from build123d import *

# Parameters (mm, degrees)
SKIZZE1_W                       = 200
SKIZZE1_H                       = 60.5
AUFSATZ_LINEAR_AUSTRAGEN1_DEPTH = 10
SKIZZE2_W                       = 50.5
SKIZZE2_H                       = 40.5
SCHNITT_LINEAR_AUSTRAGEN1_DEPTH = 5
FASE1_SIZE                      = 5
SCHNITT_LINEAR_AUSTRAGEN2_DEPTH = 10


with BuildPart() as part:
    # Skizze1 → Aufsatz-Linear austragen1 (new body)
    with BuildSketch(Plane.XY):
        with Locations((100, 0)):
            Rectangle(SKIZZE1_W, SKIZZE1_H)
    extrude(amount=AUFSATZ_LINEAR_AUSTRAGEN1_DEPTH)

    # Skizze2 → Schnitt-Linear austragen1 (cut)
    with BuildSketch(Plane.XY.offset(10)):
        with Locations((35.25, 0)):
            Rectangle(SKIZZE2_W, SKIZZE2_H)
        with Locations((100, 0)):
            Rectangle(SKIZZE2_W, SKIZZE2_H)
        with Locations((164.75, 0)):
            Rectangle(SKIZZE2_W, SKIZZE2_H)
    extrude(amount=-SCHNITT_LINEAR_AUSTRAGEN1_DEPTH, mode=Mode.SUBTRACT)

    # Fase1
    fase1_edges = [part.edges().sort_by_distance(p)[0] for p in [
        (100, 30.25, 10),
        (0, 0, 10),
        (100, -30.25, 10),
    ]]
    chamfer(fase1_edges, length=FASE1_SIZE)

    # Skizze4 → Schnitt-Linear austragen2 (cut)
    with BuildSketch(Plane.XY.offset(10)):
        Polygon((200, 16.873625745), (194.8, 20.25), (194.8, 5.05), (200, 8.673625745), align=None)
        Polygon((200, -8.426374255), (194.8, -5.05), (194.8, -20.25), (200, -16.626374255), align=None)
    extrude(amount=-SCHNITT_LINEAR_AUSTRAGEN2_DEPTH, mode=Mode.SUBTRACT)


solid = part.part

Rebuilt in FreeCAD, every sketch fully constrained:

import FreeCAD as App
import Part
import Sketcher
Q = App.Units.Quantity


def edges_at(feature, points):
    """Names of the edges that pass closest to the given points."""
    edges = feature.Shape.Edges
    near = lambda p: min(range(len(edges)), key=lambda i: edges[i].distToShape(Part.Vertex(*p))[0])
    return sorted({f"Edge{near(p) + 1}" for p in points})

doc = App.newDocument("Part")
body = doc.addObject("PartDesign::Body", "Body")

# Sketch on XY plane
sketch1 = body.newObject("Sketcher::SketchObject", "Sketch")
sketch1.AttachmentSupport = (doc.getObject("XY_Plane"), [""])
sketch1.MapMode = "FlatFace"
sketch1.addGeometry([
    Part.LineSegment(App.Vector(0, 30, 0), App.Vector(0, -30, 0)),
    Part.LineSegment(App.Vector(0, -30, 0), App.Vector(200, -30, 0)),
    Part.LineSegment(App.Vector(200, -30, 0), App.Vector(200, 30, 0)),
    Part.LineSegment(App.Vector(200, 30, 0), App.Vector(0, 30, 0)),
], False)
sketch1.addConstraint([
    Sketcher.Constraint("Coincident", 0, 2, 1, 1),
    Sketcher.Constraint("Coincident", 1, 2, 2, 1),
    Sketcher.Constraint("Coincident", 2, 2, 3, 1),
    Sketcher.Constraint("Coincident", 3, 2, 0, 1),
    Sketcher.Constraint("Vertical", 0),
    Sketcher.Constraint("Horizontal", 1),
    Sketcher.Constraint("Vertical", 2),
    Sketcher.Constraint("Horizontal", 3),
    Sketcher.Constraint("Symmetric", 0, 2, 3, 2, -1, 1),
    Sketcher.Constraint("DistanceX", 1, 1, 1, 2, Q("200 mm")),
    Sketcher.Constraint("DistanceY", 0, 2, 0, 1, Q("60.5 mm")),
])
pad1 = body.newObject("PartDesign::Pad", "Pad")
pad1.Profile = sketch1
pad1.Length = 10

# Sketch on XY plane
sketch2 = body.newObject("Sketcher::SketchObject", "Sketch001")
sketch2.AttachmentSupport = (doc.getObject("XY_Plane"), [""])
sketch2.MapMode = "FlatFace"
sketch2.AttachmentOffset = App.Placement(App.Vector(0, 0, 10), App.Rotation())
sketch2.addGeometry([
    Part.LineSegment(App.Vector(10, 20, 0), App.Vector(10, -20, 0)),  # 0
    Part.LineSegment(App.Vector(10, -20, 0), App.Vector(60, -20, 0)),  # 1
    Part.LineSegment(App.Vector(60, -20, 0), App.Vector(60, 20, 0)),  # 2
    Part.LineSegment(App.Vector(60, 20, 0), App.Vector(10, 20, 0)),  # 3
    Part.LineSegment(App.Vector(75, 20, 0), App.Vector(75, -20, 0)),  # 4
    Part.LineSegment(App.Vector(75, -20, 0), App.Vector(125, -20, 0)),  # 5
    Part.LineSegment(App.Vector(125, -20, 0), App.Vector(125, 20, 0)),  # 6
    Part.LineSegment(App.Vector(125, 20, 0), App.Vector(75, 20, 0)),  # 7
    Part.LineSegment(App.Vector(140, 20, 0), App.Vector(140, -20, 0)),  # 8
    Part.LineSegment(App.Vector(140, -20, 0), App.Vector(190, -20, 0)),  # 9
    Part.LineSegment(App.Vector(190, -20, 0), App.Vector(190, 20, 0)),  # 10
    Part.LineSegment(App.Vector(190, 20, 0), App.Vector(140, 20, 0)),  # 11
], False)
sketch2.addConstraint([
    Sketcher.Constraint("Coincident", 0, 2, 1, 1),
    Sketcher.Constraint("Coincident", 1, 2, 2, 1),
    Sketcher.Constraint("Coincident", 2, 2, 3, 1),
    Sketcher.Constraint("Coincident", 3, 2, 0, 1),
    Sketcher.Constraint("Coincident", 4, 2, 5, 1),
    Sketcher.Constraint("Coincident", 5, 2, 6, 1),
    Sketcher.Constraint("Coincident", 6, 2, 7, 1),
    Sketcher.Constraint("Coincident", 7, 2, 4, 1),
    Sketcher.Constraint("Coincident", 8, 2, 9, 1),
    Sketcher.Constraint("Coincident", 9, 2, 10, 1),
    Sketcher.Constraint("Coincident", 10, 2, 11, 1),
    Sketcher.Constraint("Coincident", 11, 2, 8, 1),
    Sketcher.Constraint("Vertical", 0),
    Sketcher.Constraint("Horizontal", 1),
    Sketcher.Constraint("Vertical", 2),
    Sketcher.Constraint("Horizontal", 3),
    Sketcher.Constraint("Vertical", 4),
    Sketcher.Constraint("Horizontal", 5),
    Sketcher.Constraint("Vertical", 6),
    Sketcher.Constraint("Horizontal", 7),
    Sketcher.Constraint("Vertical", 8),
    Sketcher.Constraint("Horizontal", 9),
    Sketcher.Constraint("Vertical", 10),
    Sketcher.Constraint("Horizontal", 11),
    Sketcher.Constraint("Horizontal", 1, 2, 4, 2),
    Sketcher.Constraint("Horizontal", 3, 2, 6, 2),
    Sketcher.Constraint("Horizontal", 5, 2, 8, 2),
    Sketcher.Constraint("Horizontal", 7, 2, 10, 2),
    Sketcher.Constraint("Equal", 3, 5),
    Sketcher.Constraint("Equal", 7, 9),
    Sketcher.Constraint("DistanceX", 1, 1, 1, 2, Q("50.5 mm")),
    Sketcher.Constraint("DistanceY", 0, 2, 0, 1, Q("40.5 mm")),
    Sketcher.Constraint("DistanceX", -1, 1, 0, 2, Q("10 mm")),
    Sketcher.Constraint("DistanceX", -1, 1, 9, 2, Q("190 mm")),
    Sketcher.Constraint("DistanceY", 0, 2, -1, 1, Q("20.25 mm")),
    Sketcher.Constraint("DistanceX", -1, 1, 4, 2, Q("74.75 mm")),
])
pocket1 = body.newObject("PartDesign::Pocket", "Pocket")
pocket1.Profile = sketch2
pocket1.Length = 5
doc.recompute()

chamfer = body.newObject("PartDesign::Chamfer", "Chamfer")
chamfer.Base = (pocket1, edges_at(pocket1, [(100, 30.25, 10), (0, 0, 10), (100, -30.25, 10)]))
chamfer.Size = 5

# Sketch on XY plane
sketch3 = body.newObject("Sketcher::SketchObject", "Sketch002")
sketch3.AttachmentSupport = (doc.getObject("XY_Plane"), [""])
sketch3.MapMode = "FlatFace"
sketch3.AttachmentOffset = App.Placement(App.Vector(0, 0, 10), App.Rotation())
sketch3.addGeometry([
    Part.LineSegment(App.Vector(200, 17, 0), App.Vector(195, 20, 0)),  # 0
    Part.LineSegment(App.Vector(195, 20, 0), App.Vector(195, 5, 0)),  # 1
    Part.LineSegment(App.Vector(195, 5, 0), App.Vector(200, 9, 0)),  # 2
    Part.LineSegment(App.Vector(200, 9, 0), App.Vector(200, 17, 0)),  # 3
    Part.LineSegment(App.Vector(200, -8, 0), App.Vector(195, -5, 0)),  # 4
    Part.LineSegment(App.Vector(195, -5, 0), App.Vector(195, -20, 0)),  # 5
    Part.LineSegment(App.Vector(195, -20, 0), App.Vector(200, -17, 0)),  # 6
    Part.LineSegment(App.Vector(200, -17, 0), App.Vector(200, -8, 0)),  # 7
], False)
sketch3.addConstraint([
    Sketcher.Constraint("Coincident", 0, 2, 1, 1),
    Sketcher.Constraint("Coincident", 1, 2, 2, 1),
    Sketcher.Constraint("Coincident", 2, 2, 3, 1),
    Sketcher.Constraint("Coincident", 3, 2, 0, 1),
    Sketcher.Constraint("Coincident", 4, 2, 5, 1),
    Sketcher.Constraint("Coincident", 5, 2, 6, 1),
    Sketcher.Constraint("Coincident", 6, 2, 7, 1),
    Sketcher.Constraint("Coincident", 7, 2, 4, 1),
    Sketcher.Constraint("Vertical", 1),
    Sketcher.Constraint("Vertical", 3),
    Sketcher.Constraint("Vertical", 5),
    Sketcher.Constraint("Vertical", 7),
    Sketcher.Constraint("Symmetric", 1, 2, 4, 2, -1),
    Sketcher.Constraint("Parallel", 0, 4),
    Sketcher.Constraint("Parallel", 2, 6),
    Sketcher.Constraint("Vertical", 3, 2, 6, 2),
    Sketcher.Constraint("Equal", 1, 5),
    Sketcher.Constraint("DistanceY", 1, 2, 1, 1, Q("15.2 mm")),
    Sketcher.Constraint("DistanceY", 3, 1, 3, 2, Q("8.2 mm")),
    Sketcher.Constraint("DistanceX", -1, 1, 2, 2, Q("200 mm")),
    Sketcher.Constraint("DistanceX", -1, 1, 0, 2, Q("194.8 mm")),
    Sketcher.Constraint("DistanceY", 4, 2, 1, 2, Q("10.1 mm")),
    Sketcher.Constraint("Distance", 0, Q("6.199992 mm")),
])
pocket2 = body.newObject("PartDesign::Pocket", "Pocket001")
pocket2.Profile = sketch3
pocket2.Length = 10

doc.recompute()
